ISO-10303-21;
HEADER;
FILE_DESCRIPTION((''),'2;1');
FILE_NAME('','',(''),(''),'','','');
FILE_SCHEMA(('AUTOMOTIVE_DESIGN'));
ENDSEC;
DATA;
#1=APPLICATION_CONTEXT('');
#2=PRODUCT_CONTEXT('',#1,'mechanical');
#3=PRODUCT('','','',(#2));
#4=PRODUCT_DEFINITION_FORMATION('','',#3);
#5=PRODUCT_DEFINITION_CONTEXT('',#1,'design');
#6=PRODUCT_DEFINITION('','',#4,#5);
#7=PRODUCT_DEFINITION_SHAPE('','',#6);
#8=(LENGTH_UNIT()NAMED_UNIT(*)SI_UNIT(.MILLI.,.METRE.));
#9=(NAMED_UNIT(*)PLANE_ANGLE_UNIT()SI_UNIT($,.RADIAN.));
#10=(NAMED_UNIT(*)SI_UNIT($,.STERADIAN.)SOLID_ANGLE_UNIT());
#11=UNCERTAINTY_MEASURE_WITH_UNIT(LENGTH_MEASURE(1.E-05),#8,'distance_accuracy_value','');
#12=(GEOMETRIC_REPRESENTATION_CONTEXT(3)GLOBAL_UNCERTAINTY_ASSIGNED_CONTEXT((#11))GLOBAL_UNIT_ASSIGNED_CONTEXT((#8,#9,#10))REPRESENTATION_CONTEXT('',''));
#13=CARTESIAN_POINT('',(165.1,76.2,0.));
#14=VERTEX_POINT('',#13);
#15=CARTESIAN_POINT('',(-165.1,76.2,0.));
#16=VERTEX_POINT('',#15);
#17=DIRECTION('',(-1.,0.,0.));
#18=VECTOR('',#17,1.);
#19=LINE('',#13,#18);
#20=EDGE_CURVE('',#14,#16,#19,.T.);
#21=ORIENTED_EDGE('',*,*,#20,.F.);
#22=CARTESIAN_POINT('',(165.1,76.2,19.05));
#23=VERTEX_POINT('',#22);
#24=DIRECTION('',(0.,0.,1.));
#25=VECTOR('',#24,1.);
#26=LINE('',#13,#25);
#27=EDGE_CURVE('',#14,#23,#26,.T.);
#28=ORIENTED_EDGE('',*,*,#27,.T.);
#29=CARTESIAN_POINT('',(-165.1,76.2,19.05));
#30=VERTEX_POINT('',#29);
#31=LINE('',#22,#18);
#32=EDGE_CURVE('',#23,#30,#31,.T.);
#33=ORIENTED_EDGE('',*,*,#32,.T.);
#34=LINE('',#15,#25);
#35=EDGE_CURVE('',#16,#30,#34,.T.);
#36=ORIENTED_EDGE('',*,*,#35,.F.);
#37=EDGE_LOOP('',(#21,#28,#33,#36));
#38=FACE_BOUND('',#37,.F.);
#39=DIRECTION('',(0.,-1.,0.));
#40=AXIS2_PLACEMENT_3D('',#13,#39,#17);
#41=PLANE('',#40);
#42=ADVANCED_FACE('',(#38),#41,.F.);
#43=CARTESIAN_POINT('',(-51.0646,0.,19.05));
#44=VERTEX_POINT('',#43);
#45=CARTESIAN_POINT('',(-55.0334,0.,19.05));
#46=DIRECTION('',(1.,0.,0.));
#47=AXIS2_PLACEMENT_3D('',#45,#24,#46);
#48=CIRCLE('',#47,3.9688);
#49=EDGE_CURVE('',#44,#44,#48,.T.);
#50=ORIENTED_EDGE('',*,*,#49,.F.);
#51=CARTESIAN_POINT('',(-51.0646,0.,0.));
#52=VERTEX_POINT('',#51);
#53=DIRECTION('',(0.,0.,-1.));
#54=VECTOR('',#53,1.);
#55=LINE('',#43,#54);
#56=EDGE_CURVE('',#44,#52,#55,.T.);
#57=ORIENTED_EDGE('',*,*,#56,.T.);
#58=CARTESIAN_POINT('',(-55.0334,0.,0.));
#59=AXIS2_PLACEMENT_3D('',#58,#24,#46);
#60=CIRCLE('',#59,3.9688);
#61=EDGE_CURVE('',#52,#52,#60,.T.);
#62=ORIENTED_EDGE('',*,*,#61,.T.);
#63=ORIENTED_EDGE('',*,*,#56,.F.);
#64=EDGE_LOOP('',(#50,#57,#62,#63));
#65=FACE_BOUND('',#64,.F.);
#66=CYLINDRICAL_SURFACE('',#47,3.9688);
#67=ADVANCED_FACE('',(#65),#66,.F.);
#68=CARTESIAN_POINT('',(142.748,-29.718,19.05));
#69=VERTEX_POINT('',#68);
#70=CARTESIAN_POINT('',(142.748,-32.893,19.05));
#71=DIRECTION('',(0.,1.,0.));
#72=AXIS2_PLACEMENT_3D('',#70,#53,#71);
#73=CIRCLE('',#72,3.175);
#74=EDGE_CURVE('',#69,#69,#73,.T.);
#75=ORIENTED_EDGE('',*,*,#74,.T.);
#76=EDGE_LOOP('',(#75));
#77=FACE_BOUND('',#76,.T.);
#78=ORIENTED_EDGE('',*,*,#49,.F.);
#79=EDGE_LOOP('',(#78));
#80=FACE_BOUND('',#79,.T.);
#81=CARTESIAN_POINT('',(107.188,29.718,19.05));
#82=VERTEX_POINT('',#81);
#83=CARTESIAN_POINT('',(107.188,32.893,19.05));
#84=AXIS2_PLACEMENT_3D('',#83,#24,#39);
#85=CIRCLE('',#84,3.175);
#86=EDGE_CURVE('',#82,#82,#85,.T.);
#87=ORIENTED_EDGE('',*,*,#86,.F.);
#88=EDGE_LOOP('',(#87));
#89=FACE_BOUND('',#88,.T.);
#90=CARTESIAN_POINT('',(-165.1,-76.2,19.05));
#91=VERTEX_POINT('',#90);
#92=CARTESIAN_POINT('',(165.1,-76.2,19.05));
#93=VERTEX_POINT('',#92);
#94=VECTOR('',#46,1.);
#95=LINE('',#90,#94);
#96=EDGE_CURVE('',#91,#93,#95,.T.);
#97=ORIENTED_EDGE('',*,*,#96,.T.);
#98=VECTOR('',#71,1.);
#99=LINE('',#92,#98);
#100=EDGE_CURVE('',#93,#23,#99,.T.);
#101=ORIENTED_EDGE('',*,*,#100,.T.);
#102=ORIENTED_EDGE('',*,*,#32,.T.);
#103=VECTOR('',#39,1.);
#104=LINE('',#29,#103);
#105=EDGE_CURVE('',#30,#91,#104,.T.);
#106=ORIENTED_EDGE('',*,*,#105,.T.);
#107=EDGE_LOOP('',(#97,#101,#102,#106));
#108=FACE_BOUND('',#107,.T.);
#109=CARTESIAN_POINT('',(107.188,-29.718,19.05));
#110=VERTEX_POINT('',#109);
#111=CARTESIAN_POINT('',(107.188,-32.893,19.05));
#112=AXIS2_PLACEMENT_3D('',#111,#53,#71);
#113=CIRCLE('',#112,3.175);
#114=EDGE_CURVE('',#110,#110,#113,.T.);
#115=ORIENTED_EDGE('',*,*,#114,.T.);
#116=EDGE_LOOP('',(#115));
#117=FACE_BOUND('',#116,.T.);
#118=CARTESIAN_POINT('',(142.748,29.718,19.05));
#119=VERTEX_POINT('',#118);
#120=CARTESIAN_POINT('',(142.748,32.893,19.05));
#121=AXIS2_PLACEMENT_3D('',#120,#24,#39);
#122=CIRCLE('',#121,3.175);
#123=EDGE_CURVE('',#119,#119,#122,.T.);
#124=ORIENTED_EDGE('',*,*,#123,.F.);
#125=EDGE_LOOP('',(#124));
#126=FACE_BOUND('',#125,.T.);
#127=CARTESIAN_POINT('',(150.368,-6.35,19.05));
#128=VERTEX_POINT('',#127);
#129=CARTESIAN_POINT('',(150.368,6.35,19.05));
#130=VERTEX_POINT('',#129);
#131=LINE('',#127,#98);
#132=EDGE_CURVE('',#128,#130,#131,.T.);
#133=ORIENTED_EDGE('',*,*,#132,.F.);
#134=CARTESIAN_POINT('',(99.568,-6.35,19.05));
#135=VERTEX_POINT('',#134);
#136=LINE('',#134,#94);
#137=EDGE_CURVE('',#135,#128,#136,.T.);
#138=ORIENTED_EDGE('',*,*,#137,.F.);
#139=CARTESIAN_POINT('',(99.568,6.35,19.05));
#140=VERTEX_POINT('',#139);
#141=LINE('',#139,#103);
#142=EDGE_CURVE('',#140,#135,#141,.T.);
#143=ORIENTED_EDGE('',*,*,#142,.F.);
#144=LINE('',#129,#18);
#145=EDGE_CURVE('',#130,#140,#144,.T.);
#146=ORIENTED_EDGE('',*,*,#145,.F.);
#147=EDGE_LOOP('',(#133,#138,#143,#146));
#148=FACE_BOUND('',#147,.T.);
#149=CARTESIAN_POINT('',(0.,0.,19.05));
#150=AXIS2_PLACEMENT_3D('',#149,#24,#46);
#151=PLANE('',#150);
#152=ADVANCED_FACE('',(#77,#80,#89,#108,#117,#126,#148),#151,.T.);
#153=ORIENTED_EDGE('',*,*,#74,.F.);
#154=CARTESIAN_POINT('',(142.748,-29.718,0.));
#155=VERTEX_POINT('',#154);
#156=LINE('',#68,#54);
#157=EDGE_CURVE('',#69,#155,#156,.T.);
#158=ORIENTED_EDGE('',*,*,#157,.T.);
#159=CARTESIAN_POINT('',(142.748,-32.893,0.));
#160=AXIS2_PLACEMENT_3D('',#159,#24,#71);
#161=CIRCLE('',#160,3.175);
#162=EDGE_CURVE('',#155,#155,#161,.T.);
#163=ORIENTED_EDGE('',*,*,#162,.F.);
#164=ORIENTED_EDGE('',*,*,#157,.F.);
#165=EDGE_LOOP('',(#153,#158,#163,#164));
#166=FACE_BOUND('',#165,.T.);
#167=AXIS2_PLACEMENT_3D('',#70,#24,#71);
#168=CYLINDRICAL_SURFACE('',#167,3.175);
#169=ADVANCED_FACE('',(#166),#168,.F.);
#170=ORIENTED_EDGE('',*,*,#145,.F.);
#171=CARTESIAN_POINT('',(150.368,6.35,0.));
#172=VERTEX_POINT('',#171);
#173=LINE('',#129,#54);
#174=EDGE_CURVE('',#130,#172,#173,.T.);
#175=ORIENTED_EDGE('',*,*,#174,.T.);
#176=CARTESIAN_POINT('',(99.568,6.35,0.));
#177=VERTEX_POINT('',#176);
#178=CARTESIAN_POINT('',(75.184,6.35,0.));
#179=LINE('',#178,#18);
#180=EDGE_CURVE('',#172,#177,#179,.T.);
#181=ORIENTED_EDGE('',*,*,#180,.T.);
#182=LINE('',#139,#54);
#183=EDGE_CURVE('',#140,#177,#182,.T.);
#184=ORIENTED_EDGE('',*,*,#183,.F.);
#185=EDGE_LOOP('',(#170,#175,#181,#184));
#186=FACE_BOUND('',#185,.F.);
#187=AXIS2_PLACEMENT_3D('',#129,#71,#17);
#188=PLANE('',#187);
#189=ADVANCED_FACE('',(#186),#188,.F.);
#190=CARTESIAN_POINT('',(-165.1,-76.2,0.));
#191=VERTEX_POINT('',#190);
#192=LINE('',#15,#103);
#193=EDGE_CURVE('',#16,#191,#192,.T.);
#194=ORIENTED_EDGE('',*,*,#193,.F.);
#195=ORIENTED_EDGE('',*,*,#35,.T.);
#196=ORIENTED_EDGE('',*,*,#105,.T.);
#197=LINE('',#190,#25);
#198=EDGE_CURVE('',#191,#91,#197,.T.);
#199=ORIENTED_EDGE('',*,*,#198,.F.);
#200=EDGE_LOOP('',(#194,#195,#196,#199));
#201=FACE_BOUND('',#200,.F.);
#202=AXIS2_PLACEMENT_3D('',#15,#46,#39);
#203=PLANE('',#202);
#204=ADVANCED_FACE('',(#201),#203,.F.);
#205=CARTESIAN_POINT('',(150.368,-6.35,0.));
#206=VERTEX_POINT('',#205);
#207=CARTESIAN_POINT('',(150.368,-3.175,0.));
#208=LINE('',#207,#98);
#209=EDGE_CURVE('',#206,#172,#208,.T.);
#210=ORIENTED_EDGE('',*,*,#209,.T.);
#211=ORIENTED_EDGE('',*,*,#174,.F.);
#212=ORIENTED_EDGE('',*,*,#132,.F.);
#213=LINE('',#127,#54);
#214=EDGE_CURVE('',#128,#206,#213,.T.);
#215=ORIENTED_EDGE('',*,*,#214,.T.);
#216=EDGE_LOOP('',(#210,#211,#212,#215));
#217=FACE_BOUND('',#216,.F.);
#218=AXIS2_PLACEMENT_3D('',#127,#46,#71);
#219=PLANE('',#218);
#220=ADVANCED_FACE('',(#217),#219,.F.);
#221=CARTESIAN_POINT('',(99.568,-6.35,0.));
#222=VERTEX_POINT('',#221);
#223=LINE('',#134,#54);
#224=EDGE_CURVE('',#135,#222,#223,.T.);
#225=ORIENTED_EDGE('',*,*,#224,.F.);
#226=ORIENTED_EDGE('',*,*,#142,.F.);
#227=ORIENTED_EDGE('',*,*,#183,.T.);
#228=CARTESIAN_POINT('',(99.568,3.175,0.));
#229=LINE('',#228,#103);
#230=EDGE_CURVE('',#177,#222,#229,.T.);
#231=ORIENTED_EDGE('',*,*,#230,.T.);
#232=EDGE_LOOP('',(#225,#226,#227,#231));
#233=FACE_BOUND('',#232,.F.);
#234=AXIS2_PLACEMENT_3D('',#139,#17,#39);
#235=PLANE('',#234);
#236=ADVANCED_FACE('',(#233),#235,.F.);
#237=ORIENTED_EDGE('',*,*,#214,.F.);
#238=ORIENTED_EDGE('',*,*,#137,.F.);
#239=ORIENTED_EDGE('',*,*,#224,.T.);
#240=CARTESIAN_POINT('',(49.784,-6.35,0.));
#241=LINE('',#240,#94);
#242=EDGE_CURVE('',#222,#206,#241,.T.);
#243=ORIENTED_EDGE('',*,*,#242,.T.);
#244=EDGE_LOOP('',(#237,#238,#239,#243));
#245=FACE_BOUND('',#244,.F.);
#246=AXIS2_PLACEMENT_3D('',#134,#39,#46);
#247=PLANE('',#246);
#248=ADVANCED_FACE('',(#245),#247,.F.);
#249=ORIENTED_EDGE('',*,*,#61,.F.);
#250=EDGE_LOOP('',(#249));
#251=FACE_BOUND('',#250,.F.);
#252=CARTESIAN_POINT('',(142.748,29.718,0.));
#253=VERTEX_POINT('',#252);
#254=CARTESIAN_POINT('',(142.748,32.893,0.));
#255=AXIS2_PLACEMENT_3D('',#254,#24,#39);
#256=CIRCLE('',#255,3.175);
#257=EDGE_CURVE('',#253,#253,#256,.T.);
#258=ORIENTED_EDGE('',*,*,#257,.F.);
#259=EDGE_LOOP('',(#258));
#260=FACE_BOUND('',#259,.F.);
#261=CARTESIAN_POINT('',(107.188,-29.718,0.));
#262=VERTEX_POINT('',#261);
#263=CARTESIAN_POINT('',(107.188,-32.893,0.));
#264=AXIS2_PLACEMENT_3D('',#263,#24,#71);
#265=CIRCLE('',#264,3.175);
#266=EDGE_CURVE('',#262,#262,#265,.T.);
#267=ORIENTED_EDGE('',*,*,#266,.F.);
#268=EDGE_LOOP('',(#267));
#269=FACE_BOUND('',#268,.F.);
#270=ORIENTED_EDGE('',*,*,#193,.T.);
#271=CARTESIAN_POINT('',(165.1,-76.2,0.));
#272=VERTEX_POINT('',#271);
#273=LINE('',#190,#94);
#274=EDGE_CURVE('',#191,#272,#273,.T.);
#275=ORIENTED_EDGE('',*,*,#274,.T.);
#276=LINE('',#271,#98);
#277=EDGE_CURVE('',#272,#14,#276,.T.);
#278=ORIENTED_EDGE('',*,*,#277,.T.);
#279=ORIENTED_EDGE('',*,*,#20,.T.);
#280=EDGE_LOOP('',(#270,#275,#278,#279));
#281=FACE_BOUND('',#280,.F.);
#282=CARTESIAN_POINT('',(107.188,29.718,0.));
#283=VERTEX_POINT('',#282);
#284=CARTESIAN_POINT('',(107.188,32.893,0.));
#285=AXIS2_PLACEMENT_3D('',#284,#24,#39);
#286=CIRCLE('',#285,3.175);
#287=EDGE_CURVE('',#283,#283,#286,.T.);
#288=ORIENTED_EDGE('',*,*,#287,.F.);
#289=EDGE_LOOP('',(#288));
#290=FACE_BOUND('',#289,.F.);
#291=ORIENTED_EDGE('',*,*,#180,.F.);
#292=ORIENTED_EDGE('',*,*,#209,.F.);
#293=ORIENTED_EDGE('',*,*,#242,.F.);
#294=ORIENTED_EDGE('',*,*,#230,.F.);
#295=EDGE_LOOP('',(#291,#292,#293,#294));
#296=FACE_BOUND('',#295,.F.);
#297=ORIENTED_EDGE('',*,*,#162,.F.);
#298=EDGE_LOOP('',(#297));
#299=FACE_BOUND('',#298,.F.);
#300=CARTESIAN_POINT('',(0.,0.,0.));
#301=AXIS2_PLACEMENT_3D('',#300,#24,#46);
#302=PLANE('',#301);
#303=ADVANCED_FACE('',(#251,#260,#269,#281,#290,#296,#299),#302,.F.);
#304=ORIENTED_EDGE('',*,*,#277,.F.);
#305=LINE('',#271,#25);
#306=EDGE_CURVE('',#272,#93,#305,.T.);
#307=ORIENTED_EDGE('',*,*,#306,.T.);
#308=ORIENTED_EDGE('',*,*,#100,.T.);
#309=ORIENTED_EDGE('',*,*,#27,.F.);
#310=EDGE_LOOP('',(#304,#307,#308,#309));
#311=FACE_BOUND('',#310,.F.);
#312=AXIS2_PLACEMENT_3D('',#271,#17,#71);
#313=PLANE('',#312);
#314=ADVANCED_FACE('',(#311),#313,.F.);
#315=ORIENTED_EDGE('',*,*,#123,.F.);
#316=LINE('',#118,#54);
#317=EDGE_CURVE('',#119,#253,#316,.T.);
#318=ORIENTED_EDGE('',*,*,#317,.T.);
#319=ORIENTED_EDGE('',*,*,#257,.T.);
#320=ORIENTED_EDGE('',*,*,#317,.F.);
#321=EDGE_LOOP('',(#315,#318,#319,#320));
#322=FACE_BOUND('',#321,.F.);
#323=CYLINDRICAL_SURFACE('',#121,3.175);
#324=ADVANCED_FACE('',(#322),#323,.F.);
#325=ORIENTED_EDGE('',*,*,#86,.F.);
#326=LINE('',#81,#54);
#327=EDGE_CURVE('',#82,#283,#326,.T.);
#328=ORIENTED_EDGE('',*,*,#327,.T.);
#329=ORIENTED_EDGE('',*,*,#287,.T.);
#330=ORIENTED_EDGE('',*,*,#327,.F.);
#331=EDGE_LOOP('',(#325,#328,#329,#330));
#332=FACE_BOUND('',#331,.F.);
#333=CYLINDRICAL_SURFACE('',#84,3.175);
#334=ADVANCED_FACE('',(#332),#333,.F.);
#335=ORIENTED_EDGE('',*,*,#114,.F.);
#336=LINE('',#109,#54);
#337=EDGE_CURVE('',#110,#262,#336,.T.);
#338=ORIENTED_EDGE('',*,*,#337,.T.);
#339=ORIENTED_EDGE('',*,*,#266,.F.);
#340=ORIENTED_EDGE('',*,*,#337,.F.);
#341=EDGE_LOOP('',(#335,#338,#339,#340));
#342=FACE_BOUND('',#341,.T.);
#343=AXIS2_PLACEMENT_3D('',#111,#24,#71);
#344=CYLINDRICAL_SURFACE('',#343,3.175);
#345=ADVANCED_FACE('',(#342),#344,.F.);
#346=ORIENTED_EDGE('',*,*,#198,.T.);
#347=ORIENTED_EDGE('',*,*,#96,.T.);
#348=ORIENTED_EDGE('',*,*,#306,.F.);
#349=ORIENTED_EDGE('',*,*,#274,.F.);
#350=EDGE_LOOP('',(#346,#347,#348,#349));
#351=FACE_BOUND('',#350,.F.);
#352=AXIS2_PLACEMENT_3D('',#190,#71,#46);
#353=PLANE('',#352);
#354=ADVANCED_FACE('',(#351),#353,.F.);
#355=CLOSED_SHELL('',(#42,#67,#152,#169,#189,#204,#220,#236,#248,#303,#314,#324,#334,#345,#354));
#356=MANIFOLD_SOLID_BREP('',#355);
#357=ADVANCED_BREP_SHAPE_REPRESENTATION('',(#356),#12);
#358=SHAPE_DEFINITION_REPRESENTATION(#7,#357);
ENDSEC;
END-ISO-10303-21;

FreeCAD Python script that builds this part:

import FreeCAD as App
import Part
import Sketcher
Q = App.Units.Quantity

doc = App.newDocument("Part")
body = doc.addObject("PartDesign::Body", "Body")

# Sketch on XY plane
sketch1 = doc.addObject("Sketcher::SketchObject", "Sketch")
body.addObject(sketch1)
sketch1.AttachmentSupport = (doc.XY_Plane, [""])
sketch1.MapMode = "FlatFace"
sketch1.addGeometry([
    Part.LineSegment(App.Vector(-165, 76, 0), App.Vector(-165, -76, 0)),
    Part.LineSegment(App.Vector(-165, -76, 0), App.Vector(165, -76, 0)),
    Part.LineSegment(App.Vector(165, -76, 0), App.Vector(165, 76, 0)),
    Part.LineSegment(App.Vector(165, 76, 0), App.Vector(-165, 76, 0)),
], False)
sketch1.addConstraint([
    Sketcher.Constraint("Coincident", 0, 2, 1, 1),
    Sketcher.Constraint("Coincident", 1, 2, 2, 1),
    Sketcher.Constraint("Coincident", 2, 2, 3, 1),
    Sketcher.Constraint("Coincident", 3, 2, 0, 1),
    Sketcher.Constraint("Vertical", 0),
    Sketcher.Constraint("Horizontal", 1),
    Sketcher.Constraint("Vertical", 2),
    Sketcher.Constraint("Horizontal", 3),
    Sketcher.Constraint("Symmetric", 0, 2, 2, 2, -1, 1),
    Sketcher.Constraint("DistanceX", 0, 2, -1, 1, Q("6.5 in")),
    Sketcher.Constraint("DistanceY", 0, 2, 0, 1, Q("6 in")),
])
pad1 = doc.addObject("PartDesign::Pad", "Pad")
body.addObject(pad1)
pad1.Profile = sketch1
pad1.Length = Q("0.75 in")

# Sketch on XY plane
sketch2 = doc.addObject("Sketcher::SketchObject", "Sketch001")
body.addObject(sketch2)
sketch2.AttachmentSupport = (doc.XY_Plane, [""])
sketch2.MapMode = "FlatFace"
sketch2.AttachmentOffset = App.Placement(App.Vector(0, 0, 0.75 * 25.4), App.Rotation())
sketch2.addGeometry(Part.Circle(App.Vector(-55, 0, 0), App.Vector(0, 0, 1), 4), False)
sketch2.addConstraint([
    Sketcher.Constraint("PointOnObject", 0, 3, -1),
    Sketcher.Constraint("Diameter", 0, Q("0.3125 in")),
    Sketcher.Constraint("DistanceX", 0, 3, -1, 1, Q("55.0334 mm")),
])
pocket1 = doc.addObject("PartDesign::Pocket", "Pocket")
body.addObject(pocket1)
pocket1.Profile = sketch2
pocket1.Length = Q("2 in")

# Sketch on XY plane
sketch3 = doc.addObject("Sketcher::SketchObject", "Sketch002")
body.addObject(sketch3)
sketch3.AttachmentSupport = (doc.XY_Plane, [""])
sketch3.MapMode = "FlatFace"
sketch3.AttachmentOffset = App.Placement(App.Vector(0, 0, 0.75 * 25.4), App.Rotation())
sketch3.addGeometry([
    Part.LineSegment(App.Vector(100, 6, 0), App.Vector(100, -6, 0)),
    Part.LineSegment(App.Vector(100, -6, 0), App.Vector(150, -6, 0)),
    Part.LineSegment(App.Vector(150, -6, 0), App.Vector(150, 6, 0)),
    Part.LineSegment(App.Vector(150, 6, 0), App.Vector(100, 6, 0)),
], False)
sketch3.addConstraint([
    Sketcher.Constraint("Coincident", 0, 2, 1, 1),
    Sketcher.Constraint("Coincident", 1, 2, 2, 1),
    Sketcher.Constraint("Coincident", 2, 2, 3, 1),
    Sketcher.Constraint("Coincident", 3, 2, 0, 1),
    Sketcher.Constraint("Vertical", 0),
    Sketcher.Constraint("Horizontal", 1),
    Sketcher.Constraint("Vertical", 2),
    Sketcher.Constraint("Horizontal", 3),
    Sketcher.Constraint("DistanceX", 1, 1, 1, 2, Q("2 in")),
    Sketcher.Constraint("DistanceX", -1, 1, 1, 2, Q("5.92 in")),
    Sketcher.Constraint("DistanceY", 0, 2, 0, 1, Q("0.5 in")),
    Sketcher.Constraint("DistanceY", 0, 2, -1, 1, Q("0.25 in")),
])
pocket2 = doc.addObject("PartDesign::Pocket", "Pocket001")
body.addObject(pocket2)
pocket2.Profile = sketch3
pocket2.Length = Q("1 in")

# Sketch on XY plane
sketch4 = doc.addObject("Sketcher::SketchObject", "Sketch003")
body.addObject(sketch4)
sketch4.AttachmentSupport = (doc.XY_Plane, [""])
sketch4.MapMode = "FlatFace"
sketch4.AttachmentOffset = App.Placement(App.Vector(0, 0, 0.75 * 25.4), App.Rotation())
sketch4.addGeometry([
    Part.Circle(App.Vector(107.2, 32.9, 0), App.Vector(0, 0, 1), 3.2),
    Part.Circle(App.Vector(142.7, 32.9, 0), App.Vector(0, 0, 1), 3.2),
], False)
sketch4.addConstraint([
    Sketcher.Constraint("Equal", 0, 1),
    Sketcher.Constraint("Horizontal", 0, 3, 1, 3),
    Sketcher.Constraint("Diameter", 0, Q("0.25 in")),
    Sketcher.Constraint("DistanceY", -1, 1, 0, 3, Q("1.295 in")),
    Sketcher.Constraint("DistanceX", 0, 3, 1, 3, Q("1.4 in")),
    Sketcher.Constraint("DistanceX", -1, 1, 0, 3, Q("4.22 in")),
])
pocket3 = doc.addObject("PartDesign::Pocket", "Pocket002")
body.addObject(pocket3)
pocket3.Profile = sketch4
pocket3.Length = Q("1 in")
doc.recompute()

mirrored = doc.addObject("PartDesign::Mirrored", "Mirrored")
body.addObject(mirrored)
mirrored.Originals = [pocket3]
mirrored.MirrorPlane = (doc.XZ_Plane, [""])
body.Tip = mirrored

doc.recompute()
